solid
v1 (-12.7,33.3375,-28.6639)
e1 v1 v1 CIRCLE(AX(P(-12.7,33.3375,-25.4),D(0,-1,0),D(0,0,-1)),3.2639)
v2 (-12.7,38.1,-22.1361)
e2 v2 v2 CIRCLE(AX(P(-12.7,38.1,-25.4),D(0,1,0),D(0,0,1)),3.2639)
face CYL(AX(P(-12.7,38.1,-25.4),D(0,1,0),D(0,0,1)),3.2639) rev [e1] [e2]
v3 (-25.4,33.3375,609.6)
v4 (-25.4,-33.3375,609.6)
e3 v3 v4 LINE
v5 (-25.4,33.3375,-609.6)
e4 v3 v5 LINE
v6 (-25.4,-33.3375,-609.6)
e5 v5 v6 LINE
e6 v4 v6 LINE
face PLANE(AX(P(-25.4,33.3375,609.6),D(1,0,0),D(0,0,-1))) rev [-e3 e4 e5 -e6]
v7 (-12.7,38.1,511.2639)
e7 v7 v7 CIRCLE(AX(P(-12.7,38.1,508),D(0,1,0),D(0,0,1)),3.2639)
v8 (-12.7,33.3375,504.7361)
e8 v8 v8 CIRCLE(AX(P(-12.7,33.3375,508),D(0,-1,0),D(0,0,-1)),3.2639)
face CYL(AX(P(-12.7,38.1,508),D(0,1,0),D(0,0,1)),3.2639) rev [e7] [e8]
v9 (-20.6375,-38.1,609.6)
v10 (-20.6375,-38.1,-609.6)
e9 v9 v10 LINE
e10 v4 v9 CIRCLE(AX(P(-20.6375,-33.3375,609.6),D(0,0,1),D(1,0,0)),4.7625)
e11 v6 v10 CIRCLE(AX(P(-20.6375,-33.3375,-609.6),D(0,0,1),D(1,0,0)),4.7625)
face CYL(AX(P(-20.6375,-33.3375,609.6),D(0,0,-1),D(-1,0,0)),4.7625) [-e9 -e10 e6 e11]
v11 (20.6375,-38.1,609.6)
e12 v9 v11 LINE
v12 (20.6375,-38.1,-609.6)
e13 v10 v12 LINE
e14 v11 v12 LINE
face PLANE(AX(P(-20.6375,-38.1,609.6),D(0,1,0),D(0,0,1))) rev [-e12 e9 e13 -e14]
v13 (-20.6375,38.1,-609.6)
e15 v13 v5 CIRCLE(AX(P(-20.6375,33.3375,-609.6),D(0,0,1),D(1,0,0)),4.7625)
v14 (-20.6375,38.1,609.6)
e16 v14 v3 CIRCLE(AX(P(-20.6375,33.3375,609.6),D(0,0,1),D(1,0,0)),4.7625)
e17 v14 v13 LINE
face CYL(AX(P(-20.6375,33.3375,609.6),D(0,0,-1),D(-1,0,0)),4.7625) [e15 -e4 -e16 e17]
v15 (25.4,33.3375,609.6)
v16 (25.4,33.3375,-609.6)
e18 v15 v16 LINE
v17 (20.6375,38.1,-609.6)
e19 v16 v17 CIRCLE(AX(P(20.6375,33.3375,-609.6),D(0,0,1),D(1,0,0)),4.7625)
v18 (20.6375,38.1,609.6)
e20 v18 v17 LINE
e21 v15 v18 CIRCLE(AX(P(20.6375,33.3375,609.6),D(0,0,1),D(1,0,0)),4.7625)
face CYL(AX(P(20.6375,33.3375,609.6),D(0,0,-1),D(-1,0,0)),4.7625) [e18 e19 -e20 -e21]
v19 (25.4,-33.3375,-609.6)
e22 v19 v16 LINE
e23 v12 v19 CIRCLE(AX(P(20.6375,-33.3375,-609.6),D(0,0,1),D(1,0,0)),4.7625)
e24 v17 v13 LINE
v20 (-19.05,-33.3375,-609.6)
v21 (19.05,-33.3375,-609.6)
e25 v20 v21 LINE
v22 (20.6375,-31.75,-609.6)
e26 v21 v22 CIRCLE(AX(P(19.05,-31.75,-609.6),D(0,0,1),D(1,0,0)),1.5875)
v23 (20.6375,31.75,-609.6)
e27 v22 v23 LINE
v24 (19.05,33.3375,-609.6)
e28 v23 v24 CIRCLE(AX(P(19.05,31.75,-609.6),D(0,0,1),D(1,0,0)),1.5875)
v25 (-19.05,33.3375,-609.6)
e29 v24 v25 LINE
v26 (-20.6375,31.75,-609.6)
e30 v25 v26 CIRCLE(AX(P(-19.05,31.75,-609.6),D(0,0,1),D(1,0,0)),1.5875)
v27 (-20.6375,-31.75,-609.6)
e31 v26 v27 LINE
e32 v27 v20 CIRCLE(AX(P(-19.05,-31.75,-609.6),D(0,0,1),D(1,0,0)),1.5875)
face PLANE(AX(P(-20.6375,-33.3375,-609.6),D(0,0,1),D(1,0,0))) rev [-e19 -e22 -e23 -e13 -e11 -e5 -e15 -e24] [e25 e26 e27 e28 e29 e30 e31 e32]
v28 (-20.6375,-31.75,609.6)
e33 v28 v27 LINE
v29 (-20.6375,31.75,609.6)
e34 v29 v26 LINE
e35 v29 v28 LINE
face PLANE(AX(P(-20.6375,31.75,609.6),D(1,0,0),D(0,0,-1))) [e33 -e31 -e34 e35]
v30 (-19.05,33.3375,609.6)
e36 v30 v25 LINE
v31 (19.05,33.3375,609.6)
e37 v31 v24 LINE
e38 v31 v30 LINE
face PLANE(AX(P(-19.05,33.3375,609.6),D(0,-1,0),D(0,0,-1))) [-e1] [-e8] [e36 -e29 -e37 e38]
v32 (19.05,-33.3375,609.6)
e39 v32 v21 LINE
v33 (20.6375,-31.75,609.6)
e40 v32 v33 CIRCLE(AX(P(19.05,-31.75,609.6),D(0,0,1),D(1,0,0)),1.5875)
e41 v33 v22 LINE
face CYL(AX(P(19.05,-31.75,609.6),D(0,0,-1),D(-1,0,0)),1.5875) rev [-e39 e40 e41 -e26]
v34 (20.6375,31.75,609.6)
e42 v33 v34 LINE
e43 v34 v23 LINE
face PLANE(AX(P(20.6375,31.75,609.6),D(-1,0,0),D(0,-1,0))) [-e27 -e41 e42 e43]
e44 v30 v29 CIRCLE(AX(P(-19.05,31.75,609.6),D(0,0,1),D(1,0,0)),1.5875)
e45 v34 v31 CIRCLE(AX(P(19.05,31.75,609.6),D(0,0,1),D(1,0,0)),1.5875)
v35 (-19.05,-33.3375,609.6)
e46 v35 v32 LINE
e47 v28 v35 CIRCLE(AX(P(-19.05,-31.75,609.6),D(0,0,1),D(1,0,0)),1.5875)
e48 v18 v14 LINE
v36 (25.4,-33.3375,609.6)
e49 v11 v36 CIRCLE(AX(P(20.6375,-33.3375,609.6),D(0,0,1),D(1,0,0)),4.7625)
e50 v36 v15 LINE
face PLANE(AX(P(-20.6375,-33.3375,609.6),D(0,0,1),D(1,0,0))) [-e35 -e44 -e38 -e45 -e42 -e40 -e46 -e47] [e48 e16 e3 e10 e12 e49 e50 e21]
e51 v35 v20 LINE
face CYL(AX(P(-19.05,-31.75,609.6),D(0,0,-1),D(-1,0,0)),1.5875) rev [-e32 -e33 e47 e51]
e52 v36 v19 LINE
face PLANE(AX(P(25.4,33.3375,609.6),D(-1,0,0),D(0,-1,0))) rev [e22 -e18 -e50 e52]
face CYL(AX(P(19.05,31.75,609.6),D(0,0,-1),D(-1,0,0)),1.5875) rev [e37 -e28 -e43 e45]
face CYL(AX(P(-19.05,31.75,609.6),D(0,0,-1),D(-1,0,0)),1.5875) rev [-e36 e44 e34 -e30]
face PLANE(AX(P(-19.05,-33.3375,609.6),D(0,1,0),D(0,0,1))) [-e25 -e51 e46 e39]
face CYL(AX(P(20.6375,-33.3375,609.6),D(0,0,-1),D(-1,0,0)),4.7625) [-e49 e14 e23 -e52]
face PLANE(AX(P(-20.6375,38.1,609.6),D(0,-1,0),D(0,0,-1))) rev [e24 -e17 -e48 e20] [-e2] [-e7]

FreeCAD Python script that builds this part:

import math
import FreeCAD as App
import Part
import Sketcher

V = App.Vector
Q = App.Units.Quantity

doc = App.newDocument("Part")
params = doc.addObject("Spreadsheet::Sheet", "Params")
for row, (alias, value) in enumerate([
    ("sketch1_width", "1.5 in"),
    ("sketch1_height", "2.5 in"),
    ("sketch1_radius", "0.1875 in"),
    ("pad1_length", "48 in"),
    ("sketch2_diameter", "0.257 in"),
    ("hole_diameter", "0.257 in"),
    ("hole_depth", "0.1875 in"),
], start=1):
    params.set(f"A{row}", alias)
    params.set(f"B{row}", "=" + value)
    params.setAlias(f"B{row}", alias)

body = doc.addObject("PartDesign::Body", "Body")

# Sketch on XY plane
sketch1 = body.newObject("Sketcher::SketchObject", "Sketch")
sketch1.AttachmentSupport = (doc.getObject("XY_Plane"), [""])
sketch1.MapMode = "FlatFace"
sketch1.addGeometry(Part.LineSegment(V(20.6, 38.1, 0), V(-20.6, 38.1, 0)), False)
sketch1.addGeometry(Part.ArcOfCircle(Part.Circle(V(-20.6, 33.3, 0), V(0, 0, 1), 4.8), math.radians(90), math.radians(180)), False)
sketch1.addGeometry(Part.LineSegment(V(-25.4, 33.3, 0), V(-25.4, -33.3, 0)), False)
sketch1.addGeometry(Part.ArcOfCircle(Part.Circle(V(-20.6, -33.3, 0), V(0, 0, 1), 4.8), math.radians(-180), math.radians(-90)), False)
sketch1.addGeometry(Part.LineSegment(V(-20.6, -38.1, 0), V(20.6, -38.1, 0)), False)
sketch1.addGeometry(Part.ArcOfCircle(Part.Circle(V(20.6, -33.3, 0), V(0, 0, 1), 4.8), math.radians(-90), math.radians(0)), False)
sketch1.addGeometry(Part.LineSegment(V(25.4, -33.3, 0), V(25.4, 33.3, 0)), False)
sketch1.addGeometry(Part.ArcOfCircle(Part.Circle(V(20.6, 33.3, 0), V(0, 0, 1), 4.8), math.radians(0), math.radians(90)), False)
sketch1.addGeometry(Part.LineSegment(V(-19.1, 33.3, 0), V(19.1, 33.3, 0)), False)
sketch1.addGeometry(Part.ArcOfCircle(Part.Circle(V(19.1, 31.8, 0), V(0, 0, 1), 1.6), math.radians(0), math.radians(90)), False)
sketch1.addGeometry(Part.LineSegment(V(20.6, 31.8, 0), V(20.6, -31.8, 0)), False)
sketch1.addGeometry(Part.ArcOfCircle(Part.Circle(V(19.1, -31.8, 0), V(0, 0, 1), 1.6), math.radians(-90), math.radians(0)), False)
sketch1.addGeometry(Part.LineSegment(V(19.1, -33.3, 0), V(-19.1, -33.3, 0)), False)
sketch1.addGeometry(Part.ArcOfCircle(Part.Circle(V(-19.1, -31.8, 0), V(0, 0, 1), 1.6), math.radians(180), math.radians(270)), False)
sketch1.addGeometry(Part.LineSegment(V(-20.6, -31.8, 0), V(-20.6, 31.8, 0)), False)
sketch1.addGeometry(Part.ArcOfCircle(Part.Circle(V(-19.1, 31.8, 0), V(0, 0, 1), 1.6), math.radians(90), math.radians(180)), False)
sketch1.addConstraint(Sketcher.Constraint("Tangent", 0, 2, 1, 1))
sketch1.addConstraint(Sketcher.Constraint("Tangent", 1, 2, 2, 1))
sketch1.addConstraint(Sketcher.Constraint("Tangent", 2, 2, 3, 1))
sketch1.addConstraint(Sketcher.Constraint("Tangent", 3, 2, 4, 1))
sketch1.addConstraint(Sketcher.Constraint("Tangent", 4, 2, 5, 1))
sketch1.addConstraint(Sketcher.Constraint("Tangent", 5, 2, 6, 1))
sketch1.addConstraint(Sketcher.Constraint("Tangent", 6, 2, 7, 1))
sketch1.addConstraint(Sketcher.Constraint("Tangent", 7, 2, 0, 1))
sketch1.addConstraint(Sketcher.Constraint("Tangent", 8, 2, 9, 2))
sketch1.addConstraint(Sketcher.Constraint("Tangent", 9, 1, 10, 1))
sketch1.addConstraint(Sketcher.Constraint("Tangent", 10, 2, 11, 2))
sketch1.addConstraint(Sketcher.Constraint("Tangent", 11, 1, 12, 1))
sketch1.addConstraint(Sketcher.Constraint("Tangent", 12, 2, 13, 2))
sketch1.addConstraint(Sketcher.Constraint("Tangent", 13, 1, 14, 1))
sketch1.addConstraint(Sketcher.Constraint("Tangent", 14, 2, 15, 2))
sketch1.addConstraint(Sketcher.Constraint("Tangent", 15, 1, 8, 1))
sketch1.addConstraint(Sketcher.Constraint("Horizontal", 0))
sketch1.addConstraint(Sketcher.Constraint("Vertical", 2))
sketch1.addConstraint(Sketcher.Constraint("Horizontal", 4))
sketch1.addConstraint(Sketcher.Constraint("Vertical", 6))
sketch1.addConstraint(Sketcher.Constraint("Horizontal", 8))
sketch1.addConstraint(Sketcher.Constraint("Vertical", 10))
sketch1.addConstraint(Sketcher.Constraint("Horizontal", 12))
sketch1.addConstraint(Sketcher.Constraint("Vertical", 14))
sketch1.addConstraint(Sketcher.Constraint("Equal", 1, 3))
sketch1.addConstraint(Sketcher.Constraint("Equal", 3, 5))
sketch1.addConstraint(Sketcher.Constraint("Equal", 5, 7))
sketch1.addConstraint(Sketcher.Constraint("Equal", 9, 11))
sketch1.addConstraint(Sketcher.Constraint("Equal", 11, 13))
sketch1.addConstraint(Sketcher.Constraint("Equal", 13, 15))
sketch1.addConstraint(Sketcher.Constraint("Symmetric", 1, 3, 5, 3, -1, 1))
sketch1.addConstraint(Sketcher.Constraint("Symmetric", 9, 3, 13, 3, -1, 1))
sketch1.addConstraint(Sketcher.Constraint("Horizontal", 6, 2, 8, 2))
sketch1.addConstraint(Sketcher.Constraint("Vertical", 7, 2, 9, 1))
sketch1.addConstraint(Sketcher.Constraint("DistanceX", 8, 1, 8, 2, Q("1.5 in")))
sketch1.addConstraint(Sketcher.Constraint("DistanceY", 10, 2, 10, 1, Q("2.5 in")))
sketch1.addConstraint(Sketcher.Constraint("DistanceX", 1, 2, -1, 1, Q("1 in")))
sketch1.addConstraint(Sketcher.Constraint("Radius", 1, Q("0.1875 in")))
sketch1.setExpression("Constraints[34]", "Params.sketch1_width")
sketch1.setExpression("Constraints[35]", "Params.sketch1_height")
sketch1.setExpression("Constraints[37]", "Params.sketch1_radius")
pad1 = body.newObject("PartDesign::Pad", "Pad")
pad1.Profile = sketch1
pad1.setExpression("Length", "Params.pad1_length")
pad1.Midplane = True

# Sketch on XZ plane
sketch2 = body.newObject("Sketcher::SketchObject", "Sketch001")
sketch2.AttachmentSupport = (doc.getObject("XZ_Plane"), [""])
sketch2.MapMode = "FlatFace"
sketch2.AttachmentOffset = App.Placement(V(0, 0, -1.5 * 25.4), App.Rotation())
sketch2.addGeometry(Part.Circle(V(-12.7, 508, 0), V(0, 0, 1), 3.3), False)
sketch2.addGeometry(Part.Circle(V(-12.7, -25.4, 0), V(0, 0, 1), 3.3), False)
sketch2.addConstraint(Sketcher.Constraint("Equal", 0, 1))
sketch2.addConstraint(Sketcher.Constraint("Vertical", 0, 3, 1, 3))
sketch2.addConstraint(Sketcher.Constraint("Diameter", 0, Q("0.257 in")))
sketch2.addConstraint(Sketcher.Constraint("DistanceY", -1, 1, 0, 3, Q("20 in")))
sketch2.addConstraint(Sketcher.Constraint("DistanceY", 1, 3, -1, 1, Q("1 in")))
sketch2.addConstraint(Sketcher.Constraint("DistanceX", 0, 3, -1, 1, Q("0.5 in")))
sketch2.setExpression("Constraints[2]", "Params.sketch2_diameter")
doc.recompute()
hole = body.newObject("PartDesign::Hole", "Hole")
hole.Profile = sketch2
hole.ThreadType = "None"
hole.setExpression("Diameter", "Params.hole_diameter")
hole.DepthType = "Dimension"
hole.setExpression("Depth", "Params.hole_depth")
hole.DrillPoint = "Flat"
hole.Reversed = True

doc.recompute()
